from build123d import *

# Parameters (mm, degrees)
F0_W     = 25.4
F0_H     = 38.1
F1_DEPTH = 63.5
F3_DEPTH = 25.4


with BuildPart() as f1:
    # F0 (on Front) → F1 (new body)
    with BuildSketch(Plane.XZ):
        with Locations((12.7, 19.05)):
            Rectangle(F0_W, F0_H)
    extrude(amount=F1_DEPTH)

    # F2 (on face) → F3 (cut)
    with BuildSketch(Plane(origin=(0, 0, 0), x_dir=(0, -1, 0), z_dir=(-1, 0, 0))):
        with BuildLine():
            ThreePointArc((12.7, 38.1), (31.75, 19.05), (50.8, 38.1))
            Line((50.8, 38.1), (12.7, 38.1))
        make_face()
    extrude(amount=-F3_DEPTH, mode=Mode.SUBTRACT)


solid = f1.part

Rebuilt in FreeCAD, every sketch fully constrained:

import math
import FreeCAD as App
import Part
import Sketcher
Q = App.Units.Quantity

doc = App.newDocument("Part")
body = doc.addObject("PartDesign::Body", "Body")

# Sketch on XZ plane
sketch1 = body.newObject("Sketcher::SketchObject", "Sketch")
sketch1.AttachmentSupport = (doc.getObject("XZ_Plane"), [""])
sketch1.MapMode = "FlatFace"
sketch1.addGeometry(Part.LineSegment(App.Vector(0, 38.1, 0), App.Vector(0, 0, 0)), False)
sketch1.addGeometry(Part.LineSegment(App.Vector(0, 0, 0), App.Vector(25.4, 0, 0)), False)
sketch1.addGeometry(Part.LineSegment(App.Vector(25.4, 0, 0), App.Vector(25.4, 38.1, 0)), False)
sketch1.addGeometry(Part.LineSegment(App.Vector(25.4, 38.1, 0), App.Vector(0, 38.1, 0)), False)
sketch1.addConstraint(Sketcher.Constraint("Coincident", 0, 2, 1, 1))
sketch1.addConstraint(Sketcher.Constraint("Coincident", 1, 2, 2, 1))
sketch1.addConstraint(Sketcher.Constraint("Coincident", 2, 2, 3, 1))
sketch1.addConstraint(Sketcher.Constraint("Coincident", 3, 2, 0, 1))
sketch1.addConstraint(Sketcher.Constraint("Vertical", 0))
sketch1.addConstraint(Sketcher.Constraint("Horizontal", 1))
sketch1.addConstraint(Sketcher.Constraint("Vertical", 2))
sketch1.addConstraint(Sketcher.Constraint("Horizontal", 3))
sketch1.addConstraint(Sketcher.Constraint("Coincident", 0, 2, -1, 1))
sketch1.addConstraint(Sketcher.Constraint("DistanceX", 1, 1, 1, 2, Q("1 in")))
sketch1.addConstraint(Sketcher.Constraint("DistanceY", 0, 2, 0, 1, Q("1.5 in")))
pad1 = body.newObject("PartDesign::Pad", "Pad")
pad1.Profile = sketch1
pad1.Length = Q("2.5 in")

# Sketch on YZ plane
sketch2 = body.newObject("Sketcher::SketchObject", "Sketch001")
sketch2.AttachmentSupport = (doc.getObject("YZ_Plane"), [""])
sketch2.MapMode = "FlatFace"
sketch2.addGeometry(Part.ArcOfCircle(Part.Circle(App.Vector(-31.75, 38.1, 0), App.Vector(0, 0, 1), 19.05), math.radians(180), math.radians(360)), False)
sketch2.addGeometry(Part.LineSegment(App.Vector(-50.8, 38.1, 0), App.Vector(-12.7, 38.1, 0)), False)
sketch2.addConstraint(Sketcher.Constraint("Coincident", 0, 1, 1, 1))
sketch2.addConstraint(Sketcher.Constraint("Coincident", 1, 2, 0, 2))
sketch2.addConstraint(Sketcher.Constraint("Horizontal", 1))
sketch2.addConstraint(Sketcher.Constraint("Radius", 0, Q("0.75 in")))
sketch2.addConstraint(Sketcher.Constraint("DistanceX", 0, 1, -1, 1, Q("2 in")))
sketch2.addConstraint(Sketcher.Constraint("DistanceY", -1, 1, 0, 3, Q("1.5 in")))
sketch2.addConstraint(Sketcher.Constraint("DistanceY", -1, 1, 0, 1, Q("1.5 in")))
pocket1 = body.newObject("PartDesign::Pocket", "Pocket")
pocket1.Profile = sketch2
pocket1.Length = Q("1 in")
pocket1.Reversed = True

doc.recompute()
